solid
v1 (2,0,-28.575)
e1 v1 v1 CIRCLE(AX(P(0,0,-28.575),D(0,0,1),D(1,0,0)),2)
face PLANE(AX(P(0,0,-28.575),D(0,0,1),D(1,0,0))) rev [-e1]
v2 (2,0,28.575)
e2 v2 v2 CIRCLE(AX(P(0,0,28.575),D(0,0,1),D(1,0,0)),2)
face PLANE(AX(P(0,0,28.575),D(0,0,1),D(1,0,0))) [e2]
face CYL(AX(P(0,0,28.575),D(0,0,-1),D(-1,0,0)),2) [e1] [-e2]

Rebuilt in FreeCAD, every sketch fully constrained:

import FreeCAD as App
import Part
import Sketcher
from FreeCAD import Vector
Q = App.Units.Quantity

doc = App.newDocument("Part")
body = doc.addObject("PartDesign::Body", "Body")

# Sketch on XY plane
sketch1 = body.newObject("Sketcher::SketchObject", "Sketch")
sketch1.AttachmentSupport = (doc.getObject("XY_Plane"), [""])
sketch1.MapMode = "FlatFace"
sketch1.addGeometry(Part.Circle(Vector(0, 0, 0), Vector(0, 0, 1), 2), False)
sketch1.addConstraint(Sketcher.Constraint("Coincident", 0, 3, -1, 1))
sketch1.addConstraint(Sketcher.Constraint("Diameter", 0, Q("4 mm")))
pad1 = body.newObject("PartDesign::Pad", "Pad")
pad1.Profile = sketch1
pad1.Length = 57.15
pad1.Midplane = True

doc.recompute()
